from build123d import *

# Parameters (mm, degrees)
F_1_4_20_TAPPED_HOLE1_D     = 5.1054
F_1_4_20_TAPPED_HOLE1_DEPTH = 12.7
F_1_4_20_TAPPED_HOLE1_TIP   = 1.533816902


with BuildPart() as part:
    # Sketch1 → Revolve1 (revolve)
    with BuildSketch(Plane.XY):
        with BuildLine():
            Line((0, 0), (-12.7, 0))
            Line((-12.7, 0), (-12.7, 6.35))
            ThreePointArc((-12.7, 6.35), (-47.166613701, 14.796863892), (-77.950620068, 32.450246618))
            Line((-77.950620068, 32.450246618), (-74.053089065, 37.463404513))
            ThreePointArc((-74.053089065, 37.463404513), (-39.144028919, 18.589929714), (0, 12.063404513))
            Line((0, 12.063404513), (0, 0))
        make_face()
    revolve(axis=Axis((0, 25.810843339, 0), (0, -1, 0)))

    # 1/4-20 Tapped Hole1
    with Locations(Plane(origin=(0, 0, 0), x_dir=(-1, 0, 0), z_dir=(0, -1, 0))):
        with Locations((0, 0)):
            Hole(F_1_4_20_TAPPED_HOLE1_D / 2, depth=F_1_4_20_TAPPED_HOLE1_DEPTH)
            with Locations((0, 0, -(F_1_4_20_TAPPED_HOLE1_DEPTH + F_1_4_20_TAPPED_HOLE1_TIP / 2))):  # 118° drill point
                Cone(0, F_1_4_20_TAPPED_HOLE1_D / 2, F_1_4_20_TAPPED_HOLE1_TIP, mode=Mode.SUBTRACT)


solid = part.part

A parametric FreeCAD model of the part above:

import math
import FreeCAD as App
import Part
import Sketcher
from FreeCAD import Vector
Q = App.Units.Quantity

doc = App.newDocument("Part")
body = doc.addObject("PartDesign::Body", "Body")

sketch1 = body.newObject("Sketcher::SketchObject", "Sketch")
sketch1.AttachmentSupport = (doc.getObject("XY_Plane"), [""])
sketch1.MapMode = "FlatFace"
sketch1.addGeometry([
    Part.LineSegment(Vector(-13, 0, 0), Vector(0, 0, 0)),
    Part.LineSegment(Vector(0, 0, 0), Vector(0, 12, 0)),
    Part.ArcOfCircle(Part.Circle(Vector(0, 133, 0), Vector(0, 0, 1), 121), math.radians(-128), math.radians(-90)),
    Part.LineSegment(Vector(-74, 37, 0), Vector(-78, 32, 0)),
    Part.ArcOfCircle(Part.Circle(Vector(0, 133, 0), Vector(0, 0, 1), 127), math.radians(-128), math.radians(-96)),
    Part.LineSegment(Vector(-13, 6, 0), Vector(-13, 0, 0)),
], False)
sketch1.addConstraint([
    Sketcher.Constraint("Coincident", 0, 2, 1, 1),
    Sketcher.Constraint("Coincident", 1, 2, 2, 2),
    Sketcher.Constraint("Coincident", 2, 1, 3, 1),
    Sketcher.Constraint("Coincident", 3, 2, 4, 1),
    Sketcher.Constraint("Coincident", 4, 2, 5, 1),
    Sketcher.Constraint("Coincident", 5, 2, 0, 1),
    Sketcher.Constraint("Horizontal", 0),
    Sketcher.Constraint("Vertical", 1),
    Sketcher.Constraint("Vertical", 5),
    Sketcher.Constraint("Coincident", 0, 2, -1, 1),
    Sketcher.Constraint("Coincident", 4, 3, 2, 3),
    Sketcher.Constraint("PointOnObject", 2, 3, -2),
    Sketcher.Constraint("Radius", 4, Q("5 in")),
    Sketcher.Constraint("Radius", 2, Q("4.75 in")),
    Sketcher.Constraint("DistanceX", 0, 1, 0, 2, Q("0.5 in")),
    Sketcher.Constraint("DistanceY", 1, 2, 2, 1, Q("1 in")),
    Sketcher.Constraint("DistanceY", 5, 2, 5, 1, Q("0.25 in")),
    Sketcher.Constraint("DistanceX", 3, 2, -1, 1, 77.95062),
])
revolution = body.newObject("PartDesign::Revolution", "Revolution")
revolution.Profile = sketch1
revolution.ReferenceAxis = (sketch1, ["V_Axis"])
revolution.Angle = 360

sketch2 = body.newObject("Sketcher::SketchObject", "Sketch001")
sketch2.AttachmentSupport = (doc.getObject("XZ_Plane"), [""])
sketch2.MapMode = "FlatFace"
sketch2.addGeometry(Part.Circle(Vector(0, 0, 0), Vector(0, 0, 1), 2.6), False)
sketch2.addConstraint([
    Sketcher.Constraint("Coincident", 0, 3, -1, 1),
    Sketcher.Constraint("Diameter", 0, Q("0.201 in")),
])
doc.recompute()
hole = body.newObject("PartDesign::Hole", "Hole")
hole.Profile = sketch2
hole.ThreadType = "None"
hole.Diameter = Q("0.201 in")
hole.DepthType = "Dimension"
hole.Depth = Q("0.5 in")
hole.DrillPoint = "Angled"
hole.DrillPointAngle = 118

doc.recompute()
